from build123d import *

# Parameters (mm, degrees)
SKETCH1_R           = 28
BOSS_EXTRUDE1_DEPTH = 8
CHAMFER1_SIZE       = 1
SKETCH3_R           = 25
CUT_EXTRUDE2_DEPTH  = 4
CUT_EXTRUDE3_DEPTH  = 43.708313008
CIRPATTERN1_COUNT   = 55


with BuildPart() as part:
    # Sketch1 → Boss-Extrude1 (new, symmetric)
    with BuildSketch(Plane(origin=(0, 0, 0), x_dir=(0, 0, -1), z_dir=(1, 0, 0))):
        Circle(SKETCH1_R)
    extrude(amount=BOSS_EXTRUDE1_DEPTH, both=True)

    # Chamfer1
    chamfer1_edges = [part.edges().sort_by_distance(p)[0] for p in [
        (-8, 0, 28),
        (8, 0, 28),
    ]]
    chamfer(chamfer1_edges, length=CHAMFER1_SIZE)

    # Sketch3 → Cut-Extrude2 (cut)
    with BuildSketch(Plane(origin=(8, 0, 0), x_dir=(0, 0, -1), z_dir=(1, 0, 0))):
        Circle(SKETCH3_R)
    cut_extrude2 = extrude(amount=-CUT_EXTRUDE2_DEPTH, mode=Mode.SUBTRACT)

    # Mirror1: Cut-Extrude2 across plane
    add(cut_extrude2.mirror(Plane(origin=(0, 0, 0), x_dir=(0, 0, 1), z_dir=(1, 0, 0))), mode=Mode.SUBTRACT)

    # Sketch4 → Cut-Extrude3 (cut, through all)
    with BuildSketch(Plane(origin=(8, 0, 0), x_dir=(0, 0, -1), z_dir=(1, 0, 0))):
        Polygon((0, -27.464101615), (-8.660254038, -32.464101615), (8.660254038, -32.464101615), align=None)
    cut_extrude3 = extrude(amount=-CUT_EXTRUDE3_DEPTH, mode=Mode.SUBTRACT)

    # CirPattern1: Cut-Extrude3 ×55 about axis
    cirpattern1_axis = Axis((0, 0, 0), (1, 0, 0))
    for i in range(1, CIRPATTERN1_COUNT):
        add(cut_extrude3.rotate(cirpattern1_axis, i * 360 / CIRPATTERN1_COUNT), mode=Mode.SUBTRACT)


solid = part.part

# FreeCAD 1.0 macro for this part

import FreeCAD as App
import Part
import Sketcher
from FreeCAD import Vector
Q = App.Units.Quantity


def edges_at(feature, points):
    """Names of the edges that pass closest to the given points."""
    edges = feature.Shape.Edges
    near = lambda p: min(range(len(edges)), key=lambda i: edges[i].distToShape(Part.Vertex(*p))[0])
    return sorted({f"Edge{near(p) + 1}" for p in points})


def add_polygon(sketch, points):
    """Adds a closed chain of lines whose ends are joined by coincident constraints."""
    first, n = sketch.GeometryCount, len(points)
    for a, b in zip(points, points[1:] + points[:1]):
        sketch.addGeometry(Part.LineSegment(App.Vector(*a, 0), App.Vector(*b, 0)), False)
    for i in range(n):
        sketch.addConstraint(Sketcher.Constraint("Coincident", first + i, 2, first + (i + 1) % n, 1))

doc = App.newDocument("Part")
body = doc.addObject("PartDesign::Body", "Body")

# Sketch on YZ plane
sketch1 = body.newObject("Sketcher::SketchObject", "Sketch")
sketch1.AttachmentSupport = (doc.getObject("YZ_Plane"), [""])
sketch1.MapMode = "FlatFace"
sketch1.addGeometry(Part.Circle(Vector(0, 0, 0), Vector(0, 0, 1), 28), False)
sketch1.addConstraint(Sketcher.Constraint("Coincident", 0, 3, -1, 1))
sketch1.addConstraint(Sketcher.Constraint("Diameter", 0, 56.0))
pad1 = body.newObject("PartDesign::Pad", "Pad")
pad1.Profile = sketch1
pad1.Length = 16
pad1.Midplane = True
doc.recompute()

chamfer = body.newObject("PartDesign::Chamfer", "Chamfer")
chamfer.Base = (pad1, edges_at(pad1, [(-8, 0, 28), (8, 0, 28)]))
chamfer.Size = 1

# Sketch on YZ plane
sketch2 = body.newObject("Sketcher::SketchObject", "Sketch001")
sketch2.AttachmentSupport = (doc.getObject("YZ_Plane"), [""])
sketch2.MapMode = "FlatFace"
sketch2.AttachmentOffset = App.Placement(Vector(0, 0, 8), App.Rotation())
sketch2.addGeometry(Part.Circle(Vector(0, 0, 0), Vector(0, 0, 1), 25), False)
sketch2.addConstraint(Sketcher.Constraint("Coincident", 0, 3, -1, 1))
sketch2.addConstraint(Sketcher.Constraint("Diameter", 0, 50.0))
pocket1 = body.newObject("PartDesign::Pocket", "Pocket")
pocket1.Profile = sketch2
pocket1.Length = 4
doc.recompute()

mirrored = body.newObject("PartDesign::Mirrored", "Mirrored")
mirrored.Originals = [pocket1]
mirrored.MirrorPlane = (doc.getObject("YZ_Plane"), [""])
body.Tip = mirrored

# Sketch on YZ plane
sketch3 = body.newObject("Sketcher::SketchObject", "Sketch002")
sketch3.AttachmentSupport = (doc.getObject("YZ_Plane"), [""])
sketch3.MapMode = "FlatFace"
sketch3.AttachmentOffset = App.Placement(Vector(0, 0, 8), App.Rotation())
add_polygon(sketch3, [(-27, 0), (-32, 9), (-32, -9)])  # lines 0-2
sketch3.addConstraint(Sketcher.Constraint("Vertical", 1))
sketch3.addConstraint(Sketcher.Constraint("PointOnObject", 2, 2, -1))
sketch3.addConstraint(Sketcher.Constraint("Equal", 0, 2))
sketch3.addConstraint(Sketcher.Constraint("Angle", 0, Q("120 deg")))
sketch3.addConstraint(Sketcher.Constraint("Distance", 0, 10.0))
sketch3.addConstraint(Sketcher.Constraint("DistanceX", 0, 2, -1, 1, 32.464102))
pocket2 = body.newObject("PartDesign::Pocket", "Pocket001")
pocket2.Profile = sketch3
pocket2.Type = "ThroughAll"
doc.recompute()

polarpattern = body.newObject("PartDesign::PolarPattern", "PolarPattern")
polarpattern.Originals = [pocket2]
polarpattern.Axis = (doc.getObject("X_Axis"), [""])
polarpattern.Angle = 360
polarpattern.Occurrences = 55
body.Tip = polarpattern

doc.recompute()
